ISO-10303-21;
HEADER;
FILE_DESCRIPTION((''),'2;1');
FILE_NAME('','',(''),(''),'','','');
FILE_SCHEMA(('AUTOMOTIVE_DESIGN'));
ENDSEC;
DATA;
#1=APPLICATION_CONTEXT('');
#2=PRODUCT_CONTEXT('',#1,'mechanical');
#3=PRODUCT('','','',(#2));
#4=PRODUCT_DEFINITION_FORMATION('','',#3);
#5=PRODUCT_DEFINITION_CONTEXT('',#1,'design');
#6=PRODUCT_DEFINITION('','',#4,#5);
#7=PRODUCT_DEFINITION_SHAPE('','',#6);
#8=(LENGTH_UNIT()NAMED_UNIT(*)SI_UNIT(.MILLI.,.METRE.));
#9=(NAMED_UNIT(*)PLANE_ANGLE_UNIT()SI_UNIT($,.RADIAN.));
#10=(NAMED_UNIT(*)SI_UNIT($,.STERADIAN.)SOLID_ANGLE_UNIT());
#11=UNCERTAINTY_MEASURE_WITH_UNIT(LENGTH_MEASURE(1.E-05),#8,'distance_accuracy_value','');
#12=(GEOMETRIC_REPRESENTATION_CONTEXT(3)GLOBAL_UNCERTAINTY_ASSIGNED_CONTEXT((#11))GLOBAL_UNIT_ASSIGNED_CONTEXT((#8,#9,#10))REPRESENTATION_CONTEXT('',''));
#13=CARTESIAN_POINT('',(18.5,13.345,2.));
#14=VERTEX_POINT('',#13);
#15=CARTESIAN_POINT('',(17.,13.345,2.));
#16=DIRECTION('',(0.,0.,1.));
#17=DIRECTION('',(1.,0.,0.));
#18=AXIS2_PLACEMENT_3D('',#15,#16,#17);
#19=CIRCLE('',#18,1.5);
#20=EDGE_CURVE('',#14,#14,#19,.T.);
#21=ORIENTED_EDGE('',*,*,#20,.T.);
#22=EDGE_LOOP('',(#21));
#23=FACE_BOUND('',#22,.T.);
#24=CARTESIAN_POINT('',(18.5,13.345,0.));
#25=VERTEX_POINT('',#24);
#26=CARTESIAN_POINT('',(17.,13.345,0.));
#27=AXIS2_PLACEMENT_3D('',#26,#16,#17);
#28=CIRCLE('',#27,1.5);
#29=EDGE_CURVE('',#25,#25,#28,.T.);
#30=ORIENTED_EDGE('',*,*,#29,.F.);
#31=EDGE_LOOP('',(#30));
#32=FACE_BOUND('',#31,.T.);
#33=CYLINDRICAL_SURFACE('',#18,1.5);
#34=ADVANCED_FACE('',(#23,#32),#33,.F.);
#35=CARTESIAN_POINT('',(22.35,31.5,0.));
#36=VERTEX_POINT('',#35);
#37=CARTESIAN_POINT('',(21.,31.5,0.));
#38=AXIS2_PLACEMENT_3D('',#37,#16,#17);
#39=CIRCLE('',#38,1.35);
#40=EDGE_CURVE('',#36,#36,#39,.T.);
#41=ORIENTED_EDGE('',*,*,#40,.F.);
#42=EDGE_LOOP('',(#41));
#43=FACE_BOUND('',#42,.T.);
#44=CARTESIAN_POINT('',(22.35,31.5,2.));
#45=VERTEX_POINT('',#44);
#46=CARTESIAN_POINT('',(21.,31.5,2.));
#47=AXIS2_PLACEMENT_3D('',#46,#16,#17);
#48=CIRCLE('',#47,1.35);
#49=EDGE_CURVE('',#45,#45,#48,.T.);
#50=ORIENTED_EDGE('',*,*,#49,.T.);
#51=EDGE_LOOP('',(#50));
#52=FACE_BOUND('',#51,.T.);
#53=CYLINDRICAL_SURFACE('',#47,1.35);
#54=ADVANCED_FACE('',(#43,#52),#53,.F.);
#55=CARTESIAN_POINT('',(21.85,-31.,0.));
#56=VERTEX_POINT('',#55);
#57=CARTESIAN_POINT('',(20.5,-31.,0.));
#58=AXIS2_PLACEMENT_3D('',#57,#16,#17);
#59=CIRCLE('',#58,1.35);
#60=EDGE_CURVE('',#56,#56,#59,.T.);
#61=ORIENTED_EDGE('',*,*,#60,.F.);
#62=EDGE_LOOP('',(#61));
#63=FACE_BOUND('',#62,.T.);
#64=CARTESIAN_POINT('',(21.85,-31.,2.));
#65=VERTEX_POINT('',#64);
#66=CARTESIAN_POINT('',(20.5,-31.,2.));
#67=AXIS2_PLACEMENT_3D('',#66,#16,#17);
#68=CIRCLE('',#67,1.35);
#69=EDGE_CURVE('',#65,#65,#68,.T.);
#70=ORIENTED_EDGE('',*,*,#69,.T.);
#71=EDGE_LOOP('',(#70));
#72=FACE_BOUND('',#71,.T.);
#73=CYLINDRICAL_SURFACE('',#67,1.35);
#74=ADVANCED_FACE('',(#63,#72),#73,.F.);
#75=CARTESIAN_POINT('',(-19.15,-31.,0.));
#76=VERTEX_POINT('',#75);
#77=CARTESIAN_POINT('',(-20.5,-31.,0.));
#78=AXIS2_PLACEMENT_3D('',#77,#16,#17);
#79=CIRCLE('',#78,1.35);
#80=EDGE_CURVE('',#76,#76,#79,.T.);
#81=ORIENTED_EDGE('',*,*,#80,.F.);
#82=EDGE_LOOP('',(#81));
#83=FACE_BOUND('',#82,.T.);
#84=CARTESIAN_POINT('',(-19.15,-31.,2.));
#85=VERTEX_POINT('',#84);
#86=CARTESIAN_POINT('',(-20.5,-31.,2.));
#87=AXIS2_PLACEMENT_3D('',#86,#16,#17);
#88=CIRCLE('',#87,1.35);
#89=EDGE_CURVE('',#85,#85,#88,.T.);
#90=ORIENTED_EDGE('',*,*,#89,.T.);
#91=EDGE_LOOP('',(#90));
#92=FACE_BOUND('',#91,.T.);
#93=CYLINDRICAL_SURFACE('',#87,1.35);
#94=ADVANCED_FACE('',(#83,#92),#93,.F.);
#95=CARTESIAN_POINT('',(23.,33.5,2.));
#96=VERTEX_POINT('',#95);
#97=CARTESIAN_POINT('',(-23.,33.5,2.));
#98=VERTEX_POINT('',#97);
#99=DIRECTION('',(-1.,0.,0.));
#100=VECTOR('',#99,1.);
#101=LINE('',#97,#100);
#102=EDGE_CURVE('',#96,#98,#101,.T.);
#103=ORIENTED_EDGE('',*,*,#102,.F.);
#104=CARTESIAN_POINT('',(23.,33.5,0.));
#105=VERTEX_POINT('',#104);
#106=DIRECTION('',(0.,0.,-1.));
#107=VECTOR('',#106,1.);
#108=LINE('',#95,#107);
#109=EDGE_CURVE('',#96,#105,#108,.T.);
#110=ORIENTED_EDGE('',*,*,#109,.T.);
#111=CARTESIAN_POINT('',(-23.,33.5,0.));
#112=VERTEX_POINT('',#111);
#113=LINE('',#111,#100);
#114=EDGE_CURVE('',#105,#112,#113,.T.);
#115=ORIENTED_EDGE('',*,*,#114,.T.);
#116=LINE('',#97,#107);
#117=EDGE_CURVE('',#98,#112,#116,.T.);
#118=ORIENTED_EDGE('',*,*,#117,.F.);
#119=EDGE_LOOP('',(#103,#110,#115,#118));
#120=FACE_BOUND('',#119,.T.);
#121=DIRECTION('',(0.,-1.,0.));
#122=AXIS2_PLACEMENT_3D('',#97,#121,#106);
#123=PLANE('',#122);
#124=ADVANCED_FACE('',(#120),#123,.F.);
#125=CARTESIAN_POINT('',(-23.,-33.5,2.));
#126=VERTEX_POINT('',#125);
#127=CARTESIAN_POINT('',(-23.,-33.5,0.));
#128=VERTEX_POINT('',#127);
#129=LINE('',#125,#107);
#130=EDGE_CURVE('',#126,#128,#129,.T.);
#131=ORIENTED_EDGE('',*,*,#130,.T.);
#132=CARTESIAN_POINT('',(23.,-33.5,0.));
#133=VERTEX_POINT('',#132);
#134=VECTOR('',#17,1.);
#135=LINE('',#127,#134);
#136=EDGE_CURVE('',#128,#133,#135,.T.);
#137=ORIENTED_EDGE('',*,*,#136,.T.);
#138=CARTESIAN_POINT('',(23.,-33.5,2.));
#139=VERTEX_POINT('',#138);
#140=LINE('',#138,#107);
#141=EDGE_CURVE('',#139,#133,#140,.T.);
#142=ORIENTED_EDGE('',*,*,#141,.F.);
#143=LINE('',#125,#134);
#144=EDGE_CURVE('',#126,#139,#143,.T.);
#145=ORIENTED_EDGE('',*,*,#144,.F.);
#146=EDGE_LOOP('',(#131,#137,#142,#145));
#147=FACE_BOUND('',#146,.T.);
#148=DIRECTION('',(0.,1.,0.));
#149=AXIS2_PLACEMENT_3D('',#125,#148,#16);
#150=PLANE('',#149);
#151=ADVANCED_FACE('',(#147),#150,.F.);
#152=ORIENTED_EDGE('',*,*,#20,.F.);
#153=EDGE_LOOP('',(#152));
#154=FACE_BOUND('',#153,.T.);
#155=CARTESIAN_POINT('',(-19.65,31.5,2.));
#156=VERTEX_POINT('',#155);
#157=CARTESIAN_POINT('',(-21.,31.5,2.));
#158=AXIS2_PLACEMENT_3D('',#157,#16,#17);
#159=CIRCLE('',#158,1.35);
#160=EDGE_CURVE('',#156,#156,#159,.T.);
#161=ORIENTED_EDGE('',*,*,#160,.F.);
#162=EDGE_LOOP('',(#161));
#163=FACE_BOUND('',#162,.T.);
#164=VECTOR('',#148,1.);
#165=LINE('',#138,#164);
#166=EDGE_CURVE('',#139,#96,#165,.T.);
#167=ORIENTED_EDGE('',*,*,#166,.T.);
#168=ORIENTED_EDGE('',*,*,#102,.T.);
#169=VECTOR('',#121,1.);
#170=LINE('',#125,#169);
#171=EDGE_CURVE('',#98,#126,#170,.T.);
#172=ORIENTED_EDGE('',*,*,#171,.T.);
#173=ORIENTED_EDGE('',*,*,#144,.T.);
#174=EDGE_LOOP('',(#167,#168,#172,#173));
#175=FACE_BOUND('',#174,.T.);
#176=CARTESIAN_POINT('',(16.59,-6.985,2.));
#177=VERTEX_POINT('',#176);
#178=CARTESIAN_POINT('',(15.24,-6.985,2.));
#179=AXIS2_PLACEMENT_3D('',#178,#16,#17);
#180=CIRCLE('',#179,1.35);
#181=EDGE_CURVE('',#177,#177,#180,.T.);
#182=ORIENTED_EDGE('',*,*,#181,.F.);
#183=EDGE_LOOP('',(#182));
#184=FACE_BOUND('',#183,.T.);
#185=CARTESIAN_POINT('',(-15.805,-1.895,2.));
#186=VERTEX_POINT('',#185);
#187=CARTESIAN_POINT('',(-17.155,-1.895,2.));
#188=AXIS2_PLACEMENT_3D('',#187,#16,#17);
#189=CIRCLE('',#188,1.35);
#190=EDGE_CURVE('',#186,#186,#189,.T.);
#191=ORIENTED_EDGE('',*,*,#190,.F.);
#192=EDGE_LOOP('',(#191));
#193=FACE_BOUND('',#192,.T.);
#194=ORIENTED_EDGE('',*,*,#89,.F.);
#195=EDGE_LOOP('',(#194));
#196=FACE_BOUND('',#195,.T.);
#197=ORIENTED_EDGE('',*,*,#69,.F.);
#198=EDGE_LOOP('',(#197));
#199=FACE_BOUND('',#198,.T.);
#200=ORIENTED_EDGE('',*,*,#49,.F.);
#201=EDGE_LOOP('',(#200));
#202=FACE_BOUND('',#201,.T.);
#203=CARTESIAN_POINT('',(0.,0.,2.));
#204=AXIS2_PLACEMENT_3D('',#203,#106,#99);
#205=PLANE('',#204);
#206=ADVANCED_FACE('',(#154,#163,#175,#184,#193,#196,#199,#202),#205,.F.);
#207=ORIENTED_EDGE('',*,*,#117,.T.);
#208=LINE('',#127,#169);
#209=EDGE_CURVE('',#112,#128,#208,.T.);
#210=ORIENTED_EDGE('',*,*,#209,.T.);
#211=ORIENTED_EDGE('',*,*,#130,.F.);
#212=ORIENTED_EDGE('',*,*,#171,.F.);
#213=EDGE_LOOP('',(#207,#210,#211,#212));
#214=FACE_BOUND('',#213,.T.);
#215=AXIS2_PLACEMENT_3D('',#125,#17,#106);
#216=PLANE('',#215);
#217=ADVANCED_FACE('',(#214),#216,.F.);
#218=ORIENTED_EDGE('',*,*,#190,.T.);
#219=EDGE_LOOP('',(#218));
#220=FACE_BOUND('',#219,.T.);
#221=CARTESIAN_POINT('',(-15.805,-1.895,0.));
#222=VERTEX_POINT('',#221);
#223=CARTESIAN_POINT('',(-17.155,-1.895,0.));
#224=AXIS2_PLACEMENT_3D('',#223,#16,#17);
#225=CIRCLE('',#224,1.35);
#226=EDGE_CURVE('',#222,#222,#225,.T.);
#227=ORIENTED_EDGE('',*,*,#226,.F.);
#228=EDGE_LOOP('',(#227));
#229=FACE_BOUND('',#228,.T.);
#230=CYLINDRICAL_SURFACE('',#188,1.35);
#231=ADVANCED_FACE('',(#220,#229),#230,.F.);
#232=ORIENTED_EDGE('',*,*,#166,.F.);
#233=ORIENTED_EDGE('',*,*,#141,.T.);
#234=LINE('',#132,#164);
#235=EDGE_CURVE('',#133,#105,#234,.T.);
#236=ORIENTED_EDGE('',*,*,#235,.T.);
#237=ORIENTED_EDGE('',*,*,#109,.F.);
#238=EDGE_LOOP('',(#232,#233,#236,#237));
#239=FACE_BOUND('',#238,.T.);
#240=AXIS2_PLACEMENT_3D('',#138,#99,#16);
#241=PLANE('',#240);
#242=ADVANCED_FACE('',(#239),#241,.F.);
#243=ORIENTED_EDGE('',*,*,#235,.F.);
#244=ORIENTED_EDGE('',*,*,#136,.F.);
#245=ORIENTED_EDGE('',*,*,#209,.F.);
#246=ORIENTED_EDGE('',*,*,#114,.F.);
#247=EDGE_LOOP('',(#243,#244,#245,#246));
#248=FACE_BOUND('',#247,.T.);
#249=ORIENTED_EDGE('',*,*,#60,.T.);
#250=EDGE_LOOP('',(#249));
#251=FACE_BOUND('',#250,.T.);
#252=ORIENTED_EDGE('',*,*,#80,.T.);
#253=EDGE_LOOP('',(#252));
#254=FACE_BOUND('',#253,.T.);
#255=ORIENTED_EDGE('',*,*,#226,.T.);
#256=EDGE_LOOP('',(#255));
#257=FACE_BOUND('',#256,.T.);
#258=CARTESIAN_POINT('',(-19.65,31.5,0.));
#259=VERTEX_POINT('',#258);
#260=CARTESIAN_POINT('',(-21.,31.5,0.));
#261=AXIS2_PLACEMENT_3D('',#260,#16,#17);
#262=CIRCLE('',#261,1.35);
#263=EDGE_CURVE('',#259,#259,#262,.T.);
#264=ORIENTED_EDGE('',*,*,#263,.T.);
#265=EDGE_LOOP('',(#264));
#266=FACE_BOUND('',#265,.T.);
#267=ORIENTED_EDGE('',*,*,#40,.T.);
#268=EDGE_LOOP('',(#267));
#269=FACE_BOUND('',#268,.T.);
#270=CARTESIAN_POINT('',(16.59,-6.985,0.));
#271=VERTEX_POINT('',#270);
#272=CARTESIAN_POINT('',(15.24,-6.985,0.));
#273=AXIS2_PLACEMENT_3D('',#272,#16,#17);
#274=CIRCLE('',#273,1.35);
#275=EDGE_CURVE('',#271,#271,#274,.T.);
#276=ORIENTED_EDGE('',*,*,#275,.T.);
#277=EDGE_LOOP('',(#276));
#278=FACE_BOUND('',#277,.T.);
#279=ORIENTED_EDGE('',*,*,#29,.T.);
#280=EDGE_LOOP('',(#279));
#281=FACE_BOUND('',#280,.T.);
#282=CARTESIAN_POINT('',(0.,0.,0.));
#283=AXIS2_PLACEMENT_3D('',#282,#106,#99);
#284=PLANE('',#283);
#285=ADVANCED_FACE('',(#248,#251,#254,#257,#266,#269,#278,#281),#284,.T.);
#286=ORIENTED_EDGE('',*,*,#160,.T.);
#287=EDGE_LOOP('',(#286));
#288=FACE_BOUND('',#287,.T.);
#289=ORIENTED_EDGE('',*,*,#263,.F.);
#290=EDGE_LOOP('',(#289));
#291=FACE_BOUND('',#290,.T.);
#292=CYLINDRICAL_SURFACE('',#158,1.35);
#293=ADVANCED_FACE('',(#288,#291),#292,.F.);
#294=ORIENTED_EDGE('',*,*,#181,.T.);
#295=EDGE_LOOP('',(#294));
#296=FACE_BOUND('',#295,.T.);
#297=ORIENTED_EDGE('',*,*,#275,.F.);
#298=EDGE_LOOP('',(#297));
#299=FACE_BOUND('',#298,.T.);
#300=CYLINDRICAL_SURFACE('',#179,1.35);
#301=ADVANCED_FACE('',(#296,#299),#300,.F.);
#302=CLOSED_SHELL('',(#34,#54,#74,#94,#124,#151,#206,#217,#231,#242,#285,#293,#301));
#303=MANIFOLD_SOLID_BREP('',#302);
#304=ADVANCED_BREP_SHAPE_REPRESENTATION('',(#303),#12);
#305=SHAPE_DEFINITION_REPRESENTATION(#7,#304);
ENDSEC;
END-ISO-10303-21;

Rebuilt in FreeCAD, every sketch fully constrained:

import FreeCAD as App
import Part
import Sketcher

doc = App.newDocument("Part")
body = doc.addObject("PartDesign::Body", "Body")

sketch1 = body.newObject("Sketcher::SketchObject", "Sketch")
sketch1.AttachmentSupport = (doc.getObject("XY_Plane"), [""])
sketch1.MapMode = "FlatFace"
sketch1.addGeometry([
    Part.LineSegment(App.Vector(-23, 34, 0), App.Vector(-23, -34, 0)),
    Part.LineSegment(App.Vector(-23, -34, 0), App.Vector(23, -34, 0)),
    Part.LineSegment(App.Vector(23, -34, 0), App.Vector(23, 34, 0)),
    Part.LineSegment(App.Vector(23, 34, 0), App.Vector(-23, 34, 0)),
], False)
sketch1.addConstraint([
    Sketcher.Constraint("Coincident", 0, 2, 1, 1),
    Sketcher.Constraint("Coincident", 1, 2, 2, 1),
    Sketcher.Constraint("Coincident", 2, 2, 3, 1),
    Sketcher.Constraint("Coincident", 3, 2, 0, 1),
    Sketcher.Constraint("Vertical", 0),
    Sketcher.Constraint("Horizontal", 1),
    Sketcher.Constraint("Vertical", 2),
    Sketcher.Constraint("Horizontal", 3),
    Sketcher.Constraint("Symmetric", 0, 2, 2, 2, -1, 1),
    Sketcher.Constraint("DistanceX", 1, 1, 1, 2, 46.0),
    Sketcher.Constraint("DistanceY", 0, 2, 0, 1, 67.0),
])
pad1 = body.newObject("PartDesign::Pad", "Pad")
pad1.Profile = sketch1
pad1.Length = 2

sketch2 = body.newObject("Sketcher::SketchObject", "Sketch001")
sketch2.AttachmentSupport = (doc.getObject("XY_Plane"), [""])
sketch2.MapMode = "FlatFace"
sketch2.AttachmentOffset = App.Placement(App.Vector(0, 0, 2), App.Rotation())
sketch2.addGeometry([
    Part.Circle(App.Vector(-21, 31.5, 0), App.Vector(0, 0, 1), 1.4),
    Part.Circle(App.Vector(21, 31.5, 0), App.Vector(0, 0, 1), 1.4),
    Part.Circle(App.Vector(20.5, -31, 0), App.Vector(0, 0, 1), 1.4),
    Part.Circle(App.Vector(-20.5, -31, 0), App.Vector(0, 0, 1), 1.4),
    Part.Circle(App.Vector(-17.2, -1.9, 0), App.Vector(0, 0, 1), 1.4),
    Part.Circle(App.Vector(15.2, -7, 0), App.Vector(0, 0, 1), 1.4),
], False)
sketch2.addConstraint([
    Sketcher.Constraint("Equal", 0, 1),
    Sketcher.Constraint("Equal", 1, 2),
    Sketcher.Constraint("Equal", 2, 3),
    Sketcher.Constraint("Equal", 3, 4),
    Sketcher.Constraint("Equal", 4, 5),
    Sketcher.Constraint("Symmetric", 0, 3, 1, 3, -2),
    Sketcher.Constraint("Symmetric", 2, 3, 3, 3, -2),
    Sketcher.Constraint("Diameter", 0, 2.7),
    Sketcher.Constraint("DistanceX", 0, 3, -1, 1, 21.0),
    Sketcher.Constraint("DistanceY", 2, 3, -1, 1, 31.0),
    Sketcher.Constraint("DistanceX", 3, 3, 2, 3, 41.0),
    Sketcher.Constraint("DistanceY", -1, 1, 0, 3, 31.5),
    Sketcher.Constraint("DistanceX", -1, 1, 5, 3, 15.24),
    Sketcher.Constraint("DistanceY", 5, 3, 4, 3, 5.09),
    Sketcher.Constraint("DistanceX", 4, 3, -1, 1, 17.155),
    Sketcher.Constraint("DistanceY", 4, 3, -1, 1, 1.895),
])
doc.recompute()
hole = body.newObject("PartDesign::Hole", "Hole")
hole.Profile = sketch2
hole.ThreadType = "None"
hole.Diameter = 2.7
hole.DepthType = "ThroughAll"

sketch3 = body.newObject("Sketcher::SketchObject", "Sketch002")
sketch3.AttachmentSupport = (doc.getObject("XY_Plane"), [""])
sketch3.MapMode = "FlatFace"
sketch3.AttachmentOffset = App.Placement(App.Vector(0, 0, 2), App.Rotation())
sketch3.addGeometry(Part.Circle(App.Vector(17, 13.3, 0), App.Vector(0, 0, 1), 1.5), False)
sketch3.addConstraint([
    Sketcher.Constraint("Diameter", 0, 3.0),
    Sketcher.Constraint("DistanceX", -1, 1, 0, 3, 17.0),
    Sketcher.Constraint("DistanceY", -1, 1, 0, 3, 13.345),
])
doc.recompute()
hole2 = body.newObject("PartDesign::Hole", "Hole001")
hole2.Profile = sketch3
hole2.ThreadType = "None"
hole2.Diameter = 3
hole2.DepthType = "ThroughAll"

doc.recompute()
